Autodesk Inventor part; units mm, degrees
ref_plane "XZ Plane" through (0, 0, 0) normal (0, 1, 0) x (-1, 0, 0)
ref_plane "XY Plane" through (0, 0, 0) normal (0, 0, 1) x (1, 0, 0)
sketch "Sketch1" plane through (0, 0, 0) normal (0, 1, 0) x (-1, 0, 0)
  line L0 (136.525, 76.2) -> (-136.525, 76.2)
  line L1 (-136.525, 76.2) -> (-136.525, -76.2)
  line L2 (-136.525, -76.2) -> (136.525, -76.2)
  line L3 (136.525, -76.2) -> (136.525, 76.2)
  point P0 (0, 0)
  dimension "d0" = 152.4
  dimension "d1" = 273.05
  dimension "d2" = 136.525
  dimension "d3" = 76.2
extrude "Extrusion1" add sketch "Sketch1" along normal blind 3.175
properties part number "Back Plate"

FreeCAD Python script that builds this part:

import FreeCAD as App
import Part
import Sketcher
from FreeCAD import Vector
Q = App.Units.Quantity

doc = App.newDocument("Part")
body = doc.addObject("PartDesign::Body", "Body")

# Sketch on XZ plane
sketch1 = doc.addObject("Sketcher::SketchObject", "Sketch")
body.addObject(sketch1)
sketch1.AttachmentSupport = (doc.XZ_Plane, [""])
sketch1.MapMode = "FlatFace"
sketch1.addGeometry([
    Part.LineSegment(Vector(-137, -76, 0), Vector(-137, 76, 0)),
    Part.LineSegment(Vector(-137, 76, 0), Vector(137, 76, 0)),
    Part.LineSegment(Vector(137, 76, 0), Vector(137, -76, 0)),
    Part.LineSegment(Vector(137, -76, 0), Vector(-137, -76, 0)),
], False)
sketch1.addConstraint([
    Sketcher.Constraint("Coincident", 0, 2, 1, 1),
    Sketcher.Constraint("Coincident", 1, 2, 2, 1),
    Sketcher.Constraint("Coincident", 2, 2, 3, 1),
    Sketcher.Constraint("Coincident", 3, 2, 0, 1),
    Sketcher.Constraint("Vertical", 0),
    Sketcher.Constraint("Horizontal", 1),
    Sketcher.Constraint("Vertical", 2),
    Sketcher.Constraint("Horizontal", 3),
    Sketcher.Constraint("Symmetric", 0, 2, 2, 2, -1, 1),
    Sketcher.Constraint("DistanceY", 0, 1, 0, 2, Q("6 in")),
    Sketcher.Constraint("DistanceX", 1, 1, 1, 2, Q("10.75 in")),
])
pad1 = doc.addObject("PartDesign::Pad", "Pad")
body.addObject(pad1)
pad1.Profile = sketch1
pad1.Length = Q("0.125 in")
pad1.Reversed = True

doc.recompute()
